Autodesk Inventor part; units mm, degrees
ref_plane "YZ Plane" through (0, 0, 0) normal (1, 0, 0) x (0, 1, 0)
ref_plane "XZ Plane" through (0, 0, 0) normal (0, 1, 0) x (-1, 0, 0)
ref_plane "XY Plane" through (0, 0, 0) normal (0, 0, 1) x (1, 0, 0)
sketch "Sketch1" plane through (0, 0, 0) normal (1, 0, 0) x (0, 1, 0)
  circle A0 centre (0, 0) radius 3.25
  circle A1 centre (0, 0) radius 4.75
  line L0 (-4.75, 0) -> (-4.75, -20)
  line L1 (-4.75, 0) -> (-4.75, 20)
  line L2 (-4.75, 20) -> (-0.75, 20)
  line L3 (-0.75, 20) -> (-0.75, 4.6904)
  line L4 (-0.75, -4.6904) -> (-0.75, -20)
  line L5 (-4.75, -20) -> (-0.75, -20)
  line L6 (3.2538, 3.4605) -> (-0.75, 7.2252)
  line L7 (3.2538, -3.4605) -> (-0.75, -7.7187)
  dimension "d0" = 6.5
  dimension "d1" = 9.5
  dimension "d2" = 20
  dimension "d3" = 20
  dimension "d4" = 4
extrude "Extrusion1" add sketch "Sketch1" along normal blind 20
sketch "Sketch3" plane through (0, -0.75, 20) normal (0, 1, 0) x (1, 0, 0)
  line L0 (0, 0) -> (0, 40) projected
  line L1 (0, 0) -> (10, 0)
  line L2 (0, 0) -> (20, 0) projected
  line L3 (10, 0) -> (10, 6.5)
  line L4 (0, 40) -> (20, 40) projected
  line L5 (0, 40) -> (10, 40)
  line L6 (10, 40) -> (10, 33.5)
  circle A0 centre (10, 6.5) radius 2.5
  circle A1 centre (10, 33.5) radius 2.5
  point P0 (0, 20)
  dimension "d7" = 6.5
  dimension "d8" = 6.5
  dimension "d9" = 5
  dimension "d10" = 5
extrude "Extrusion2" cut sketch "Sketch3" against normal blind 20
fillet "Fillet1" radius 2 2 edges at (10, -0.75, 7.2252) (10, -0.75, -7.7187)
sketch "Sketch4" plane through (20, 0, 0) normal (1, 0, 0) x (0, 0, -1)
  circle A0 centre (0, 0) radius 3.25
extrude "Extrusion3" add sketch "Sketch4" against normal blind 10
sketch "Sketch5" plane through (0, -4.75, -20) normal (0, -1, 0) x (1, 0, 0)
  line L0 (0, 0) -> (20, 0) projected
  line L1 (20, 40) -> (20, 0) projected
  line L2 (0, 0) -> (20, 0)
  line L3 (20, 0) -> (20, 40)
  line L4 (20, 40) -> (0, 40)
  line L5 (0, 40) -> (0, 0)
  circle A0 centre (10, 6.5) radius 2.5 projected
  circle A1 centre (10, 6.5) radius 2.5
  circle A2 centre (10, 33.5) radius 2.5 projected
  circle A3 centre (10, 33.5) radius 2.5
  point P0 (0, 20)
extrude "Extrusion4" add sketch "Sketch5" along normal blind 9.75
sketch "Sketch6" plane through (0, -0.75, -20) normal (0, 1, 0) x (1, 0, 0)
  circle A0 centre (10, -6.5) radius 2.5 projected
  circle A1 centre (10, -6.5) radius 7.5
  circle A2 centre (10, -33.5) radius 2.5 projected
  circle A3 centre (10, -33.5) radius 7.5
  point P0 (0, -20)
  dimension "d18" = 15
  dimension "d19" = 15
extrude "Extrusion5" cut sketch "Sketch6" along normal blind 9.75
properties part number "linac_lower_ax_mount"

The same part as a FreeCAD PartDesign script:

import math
import FreeCAD as App
import Part
import Sketcher


def edges_at(feature, points):
    """Names of the edges that pass closest to the given points."""
    edges = feature.Shape.Edges
    near = lambda p: min(range(len(edges)), key=lambda i: edges[i].distToShape(Part.Vertex(*p))[0])
    return sorted({f"Edge{near(p) + 1}" for p in points})


def add_polygon(sketch, points):
    """Adds a closed chain of lines whose ends are joined by coincident constraints."""
    first, n = sketch.GeometryCount, len(points)
    for a, b in zip(points, points[1:] + points[:1]):
        sketch.addGeometry(Part.LineSegment(App.Vector(*a, 0), App.Vector(*b, 0)), False)
    for i in range(n):
        sketch.addConstraint(Sketcher.Constraint("Coincident", first + i, 2, first + (i + 1) % n, 1))

doc = App.newDocument("Part")
body = doc.addObject("PartDesign::Body", "Body")

# Sketch on YZ plane
sketch1 = body.newObject("Sketcher::SketchObject", "Sketch")
sketch1.AttachmentSupport = (doc.getObject("YZ_Plane"), [""])
sketch1.MapMode = "FlatFace"
sketch1.addGeometry([
    Part.ArcOfCircle(Part.Circle(App.Vector(0, 0, 0), App.Vector(0, 0, 1), 4.8), math.radians(-47), math.radians(47)),  # 0
    Part.LineSegment(App.Vector(3.3, 3.5, 0), App.Vector(-0.8, 7.2, 0)),  # 1
    Part.LineSegment(App.Vector(-0.8, 7.2, 0), App.Vector(-0.8, 20, 0)),  # 2
    Part.LineSegment(App.Vector(-0.8, 20, 0), App.Vector(-4.8, 20, 0)),  # 3
    Part.LineSegment(App.Vector(-4.8, 20, 0), App.Vector(-4.8, -20, 0)),  # 4
    Part.LineSegment(App.Vector(-4.8, -20, 0), App.Vector(-0.8, -20, 0)),  # 5
    Part.LineSegment(App.Vector(-0.8, -20, 0), App.Vector(-0.8, -7.7, 0)),  # 6
    Part.LineSegment(App.Vector(-0.8, -7.7, 0), App.Vector(3.3, -3.5, 0)),  # 7
    Part.Circle(App.Vector(0, 0, 0), App.Vector(0, 0, 1), 3.2),  # 8
], False)
sketch1.addConstraint([
    Sketcher.Constraint("Tangent", 0, 2, 1, 1),
    Sketcher.Constraint("Coincident", 1, 2, 2, 1),
    Sketcher.Constraint("Coincident", 2, 2, 3, 1),
    Sketcher.Constraint("Coincident", 3, 2, 4, 1),
    Sketcher.Constraint("Coincident", 4, 2, 5, 1),
    Sketcher.Constraint("Coincident", 5, 2, 6, 1),
    Sketcher.Constraint("Coincident", 6, 2, 7, 1),
    Sketcher.Constraint("Coincident", 7, 2, 0, 1),
    Sketcher.Constraint("Vertical", 2),
    Sketcher.Constraint("Horizontal", 3),
    Sketcher.Constraint("Vertical", 4),
    Sketcher.Constraint("Horizontal", 5),
    Sketcher.Constraint("Vertical", 6),
    Sketcher.Constraint("Coincident", 0, 3, -1, 1),
    Sketcher.Constraint("Coincident", 8, 3, -1, 1),
    Sketcher.Constraint("Symmetric", 2, 2, 5, 2, -1),
    Sketcher.Constraint("Perpendicular", 1, 7),
    Sketcher.Constraint("Vertical", 0, 2, 7, 2),
    Sketcher.Constraint("Diameter", 8, 6.5),
    Sketcher.Constraint("DistanceX", 3, 2, 3, 1, 4.0),
    Sketcher.Constraint("Radius", 0, 4.75),
    Sketcher.Constraint("DistanceY", -1, 1, 2, 2, 20.0),
    Sketcher.Constraint("DistanceX", 1, 2, -1, 1, 0.75),
    Sketcher.Constraint("Distance", 7, 5.845),
])
pad1 = body.newObject("PartDesign::Pad", "Pad")
pad1.Profile = sketch1
pad1.Length = 20

# Sketch on XZ plane
sketch2 = body.newObject("Sketcher::SketchObject", "Sketch001")
sketch2.AttachmentSupport = (doc.getObject("XZ_Plane"), [""])
sketch2.MapMode = "FlatFace"
sketch2.AttachmentOffset = App.Placement(App.Vector(0, 0, 0.75), App.Rotation())
sketch2.addGeometry([
    Part.Circle(App.Vector(10, -13.5, 0), App.Vector(0, 0, 1), 2.5),
    Part.Circle(App.Vector(10, 13.5, 0), App.Vector(0, 0, 1), 2.5),
], False)
sketch2.addConstraint([
    Sketcher.Constraint("Equal", 0, 1),
    Sketcher.Constraint("Symmetric", 0, 3, 1, 3, -1),
    Sketcher.Constraint("Diameter", 0, 5.0),
    Sketcher.Constraint("DistanceX", -1, 1, 0, 3, 10.0),
    Sketcher.Constraint("DistanceY", 0, 3, 1, 3, 27.0),
])
pocket1 = body.newObject("PartDesign::Pocket", "Pocket")
pocket1.Profile = sketch2
pocket1.Length = 20
pocket1.Reversed = True
doc.recompute()

fillet = body.newObject("PartDesign::Fillet", "Fillet")
fillet.Base = (pocket1, edges_at(pocket1, [(10, -0.75, 7.225), (10, -0.75, -7.719)]))
fillet.Radius = 2

# Sketch on YZ plane
sketch3 = body.newObject("Sketcher::SketchObject", "Sketch002")
sketch3.AttachmentSupport = (doc.getObject("YZ_Plane"), [""])
sketch3.MapMode = "FlatFace"
sketch3.AttachmentOffset = App.Placement(App.Vector(0, 0, 20), App.Rotation())
sketch3.addGeometry(Part.Circle(App.Vector(0, 0, 0), App.Vector(0, 0, 1), 3.2), False)
sketch3.addConstraint([
    Sketcher.Constraint("Coincident", 0, 3, -1, 1),
    Sketcher.Constraint("Diameter", 0, 6.5),
])
pad2 = body.newObject("PartDesign::Pad", "Pad001")
pad2.Profile = sketch3
pad2.Length = 10
pad2.Reversed = True

# Sketch on XZ plane
sketch4 = body.newObject("Sketcher::SketchObject", "Sketch003")
sketch4.AttachmentSupport = (doc.getObject("XZ_Plane"), [""])
sketch4.MapMode = "FlatFace"
sketch4.AttachmentOffset = App.Placement(App.Vector(0, 0, 4.75), App.Rotation())
add_polygon(sketch4, [(0, 20), (0, -20), (20, -20), (20, 20)])  # lines 0-3
sketch4.addGeometry(Part.Circle(App.Vector(10, -13.5, 0), App.Vector(0, 0, 1), 2.5), False)  # 4
sketch4.addGeometry(Part.Circle(App.Vector(10, 13.5, 0), App.Vector(0, 0, 1), 2.5), False)  # 5
sketch4.addConstraint([
    Sketcher.Constraint("Vertical", 0),
    Sketcher.Constraint("Horizontal", 1),
    Sketcher.Constraint("Vertical", 2),
    Sketcher.Constraint("Horizontal", 3),
    Sketcher.Constraint("Equal", 4, 5),
    Sketcher.Constraint("Symmetric", 0, 2, 3, 2, -1, 1),
    Sketcher.Constraint("Symmetric", 4, 3, 5, 3, -1),
    Sketcher.Constraint("Diameter", 4, 5.0),
    Sketcher.Constraint("DistanceX", 1, 1, 1, 2, 20.0),
    Sketcher.Constraint("DistanceY", 0, 2, 0, 1, 40.0),
    Sketcher.Constraint("DistanceX", -1, 1, 4, 3, 10.0),
    Sketcher.Constraint("DistanceY", 4, 3, 5, 3, 27.0),
])
pad3 = body.newObject("PartDesign::Pad", "Pad002")
pad3.Profile = sketch4
pad3.Length = 9.75

# Sketch on XZ plane
sketch5 = body.newObject("Sketcher::SketchObject", "Sketch004")
sketch5.AttachmentSupport = (doc.getObject("XZ_Plane"), [""])
sketch5.MapMode = "FlatFace"
sketch5.AttachmentOffset = App.Placement(App.Vector(0, 0, 0.75), App.Rotation())
sketch5.addGeometry([
    Part.Circle(App.Vector(10, -13.5, 0), App.Vector(0, 0, 1), 7.5),
    Part.Circle(App.Vector(10, -13.5, 0), App.Vector(0, 0, 1), 2.5),
    Part.Circle(App.Vector(10, 13.5, 0), App.Vector(0, 0, 1), 7.5),
    Part.Circle(App.Vector(10, 13.5, 0), App.Vector(0, 0, 1), 2.5),
], False)
sketch5.addConstraint([
    Sketcher.Constraint("Coincident", 1, 3, 0, 3),
    Sketcher.Constraint("Coincident", 3, 3, 2, 3),
    Sketcher.Constraint("Equal", 0, 2),
    Sketcher.Constraint("Equal", 1, 3),
    Sketcher.Constraint("Symmetric", 0, 3, 2, 3, -1),
    Sketcher.Constraint("Diameter", 0, 15.0),
    Sketcher.Constraint("Diameter", 1, 5.0),
    Sketcher.Constraint("DistanceX", -1, 1, 0, 3, 10.0),
    Sketcher.Constraint("DistanceY", 0, 3, 2, 3, 27.0),
])
pocket2 = body.newObject("PartDesign::Pocket", "Pocket001")
pocket2.Profile = sketch5
pocket2.Length = 9.75

doc.recompute()
